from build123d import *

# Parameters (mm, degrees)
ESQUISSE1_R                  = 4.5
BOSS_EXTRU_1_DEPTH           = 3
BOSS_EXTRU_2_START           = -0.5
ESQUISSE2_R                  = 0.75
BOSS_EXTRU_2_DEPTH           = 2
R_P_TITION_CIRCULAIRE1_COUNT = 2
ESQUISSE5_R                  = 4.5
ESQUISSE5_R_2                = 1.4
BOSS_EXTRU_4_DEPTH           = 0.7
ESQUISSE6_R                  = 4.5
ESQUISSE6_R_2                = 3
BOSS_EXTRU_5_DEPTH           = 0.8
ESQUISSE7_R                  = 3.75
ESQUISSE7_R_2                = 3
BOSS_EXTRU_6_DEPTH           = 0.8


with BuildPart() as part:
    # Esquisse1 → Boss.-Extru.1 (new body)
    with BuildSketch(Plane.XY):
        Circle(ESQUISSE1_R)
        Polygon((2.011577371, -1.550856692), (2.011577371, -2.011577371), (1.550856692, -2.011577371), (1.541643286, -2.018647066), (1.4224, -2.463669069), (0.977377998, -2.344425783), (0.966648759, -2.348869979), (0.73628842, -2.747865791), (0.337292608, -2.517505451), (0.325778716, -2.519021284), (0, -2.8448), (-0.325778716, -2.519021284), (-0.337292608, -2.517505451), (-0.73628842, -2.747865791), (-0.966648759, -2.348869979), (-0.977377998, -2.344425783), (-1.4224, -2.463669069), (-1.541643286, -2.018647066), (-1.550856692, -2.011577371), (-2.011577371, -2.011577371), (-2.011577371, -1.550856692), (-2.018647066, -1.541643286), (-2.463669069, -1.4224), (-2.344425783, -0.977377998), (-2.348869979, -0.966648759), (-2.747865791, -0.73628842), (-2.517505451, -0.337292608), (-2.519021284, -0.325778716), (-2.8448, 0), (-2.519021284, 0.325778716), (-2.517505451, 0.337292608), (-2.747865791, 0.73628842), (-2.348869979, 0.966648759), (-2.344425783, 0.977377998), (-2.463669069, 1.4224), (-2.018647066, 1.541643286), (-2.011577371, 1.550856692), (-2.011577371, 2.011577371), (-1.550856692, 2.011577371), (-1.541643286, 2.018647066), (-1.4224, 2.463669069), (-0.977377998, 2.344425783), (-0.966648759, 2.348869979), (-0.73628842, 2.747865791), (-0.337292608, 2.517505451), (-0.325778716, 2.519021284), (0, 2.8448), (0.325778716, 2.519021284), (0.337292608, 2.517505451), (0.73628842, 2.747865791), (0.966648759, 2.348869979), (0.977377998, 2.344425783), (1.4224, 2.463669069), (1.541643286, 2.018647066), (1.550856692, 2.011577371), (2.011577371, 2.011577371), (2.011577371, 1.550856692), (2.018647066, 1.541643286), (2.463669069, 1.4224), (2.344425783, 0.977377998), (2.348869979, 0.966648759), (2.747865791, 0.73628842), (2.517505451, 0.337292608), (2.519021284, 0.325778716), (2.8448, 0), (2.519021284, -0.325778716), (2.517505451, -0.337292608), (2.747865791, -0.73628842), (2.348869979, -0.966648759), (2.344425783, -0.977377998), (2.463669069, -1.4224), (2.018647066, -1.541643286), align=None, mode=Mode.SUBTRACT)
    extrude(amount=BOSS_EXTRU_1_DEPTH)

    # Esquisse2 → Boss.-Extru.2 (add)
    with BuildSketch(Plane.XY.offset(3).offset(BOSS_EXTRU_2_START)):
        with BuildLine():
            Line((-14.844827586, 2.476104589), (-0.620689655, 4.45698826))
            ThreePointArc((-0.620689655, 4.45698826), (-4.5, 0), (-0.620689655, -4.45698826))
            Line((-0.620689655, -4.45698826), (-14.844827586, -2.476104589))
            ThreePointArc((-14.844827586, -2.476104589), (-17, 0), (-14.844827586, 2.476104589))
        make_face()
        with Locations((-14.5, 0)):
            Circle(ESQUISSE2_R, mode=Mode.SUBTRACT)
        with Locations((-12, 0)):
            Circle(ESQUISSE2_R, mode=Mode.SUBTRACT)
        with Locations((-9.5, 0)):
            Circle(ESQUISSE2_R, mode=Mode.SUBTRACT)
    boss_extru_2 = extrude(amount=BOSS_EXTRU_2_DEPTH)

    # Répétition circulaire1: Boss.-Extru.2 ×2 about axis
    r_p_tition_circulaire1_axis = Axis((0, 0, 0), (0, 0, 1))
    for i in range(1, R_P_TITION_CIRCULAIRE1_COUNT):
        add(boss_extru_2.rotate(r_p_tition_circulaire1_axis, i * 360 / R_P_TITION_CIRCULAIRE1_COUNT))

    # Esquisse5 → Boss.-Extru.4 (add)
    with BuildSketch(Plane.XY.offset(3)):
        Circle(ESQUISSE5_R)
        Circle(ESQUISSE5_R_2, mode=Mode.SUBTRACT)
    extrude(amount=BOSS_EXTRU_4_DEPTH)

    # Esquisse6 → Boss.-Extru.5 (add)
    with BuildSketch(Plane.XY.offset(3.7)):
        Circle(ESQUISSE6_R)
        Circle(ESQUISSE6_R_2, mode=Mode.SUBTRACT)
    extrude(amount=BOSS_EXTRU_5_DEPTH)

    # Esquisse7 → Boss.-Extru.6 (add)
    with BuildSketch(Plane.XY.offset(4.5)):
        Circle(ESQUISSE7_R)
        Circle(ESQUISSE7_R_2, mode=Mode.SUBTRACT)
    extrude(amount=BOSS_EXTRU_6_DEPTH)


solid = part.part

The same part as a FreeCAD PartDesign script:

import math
import FreeCAD as App
import Part
import Sketcher
Q = App.Units.Quantity


def add_polygon(sketch, points):
    """Adds a closed chain of lines whose ends are joined by coincident constraints."""
    first, n = sketch.GeometryCount, len(points)
    for a, b in zip(points, points[1:] + points[:1]):
        sketch.addGeometry(Part.LineSegment(App.Vector(*a, 0), App.Vector(*b, 0)), False)
    for i in range(n):
        sketch.addConstraint(Sketcher.Constraint("Coincident", first + i, 2, first + (i + 1) % n, 1))

doc = App.newDocument("Part")
params = doc.addObject("Spreadsheet::Sheet", "Params")
for row, (alias, value) in enumerate([
    ("sketch1_diameter", "9 mm"),
    ("pad1_length", "3 mm"),
    ("sketch2_diameter", "1.5 mm"),
    ("sketch2_radius", "2.5 mm"),
    ("sketch2_radius2", "4.5 mm"),
    ("pad2_length", "2 mm"),
    ("sketch3_diameter", "9 mm"),
    ("sketch3_diameter2", "2.8 mm"),
    ("pad3_length", "0.7 mm"),
    ("sketch4_diameter", "9 mm"),
    ("sketch4_diameter2", "6 mm"),
    ("pad4_length", "0.8 mm"),
    ("sketch5_diameter", "6 mm"),
    ("sketch5_diameter2", "7.5 mm"),
    ("pad5_length", "0.8 mm"),
], start=1):
    params.set(f"A{row}", alias)
    params.set(f"B{row}", "=" + value)
    params.setAlias(f"B{row}", alias)

body = doc.addObject("PartDesign::Body", "Body")

# Sketch on XY plane
sketch1 = doc.addObject("Sketcher::SketchObject", "Sketch")
body.addObject(sketch1)
sketch1.AttachmentSupport = (doc.XY_Plane, [""])
sketch1.MapMode = "FlatFace"
sketch1.addGeometry(Part.Circle(App.Vector(0, 0, 0), App.Vector(0, 0, 1), 4.5), False)  # 0
add_polygon(sketch1, [(2.018647, -1.541643), (2.011577, -1.550857), (2.011577, -2.011577), (1.550857, -2.011577), (1.541643, -2.018647), (1.4224, -2.463669), (0.977378, -2.344426), (0.966649, -2.34887), (0.736288, -2.747866), (0.337293, -2.517505), (0.325779, -2.519021), (0, -2.8448), (-0.325779, -2.519021), (-0.337293, -2.517505), (-0.736288, -2.747866), (-0.966649, -2.34887), (-0.977378, -2.344426), (-1.4224, -2.463669), (-1.541643, -2.018647), (-1.550857, -2.011577), (-2.011577, -2.011577), (-2.011577, -1.550857), (-2.018647, -1.541643), (-2.463669, -1.4224), (-2.344426, -0.977378), (-2.34887, -0.966649), (-2.747866, -0.736288), (-2.517505, -0.337293), (-2.519021, -0.325779), (-2.8448, 0), (-2.519021, 0.325779), (-2.517505, 0.337293), (-2.747866, 0.736288), (-2.34887, 0.966649), (-2.344426, 0.977378), (-2.463669, 1.4224), (-2.018647, 1.541643), (-2.011577, 1.550857), (-2.011577, 2.011577), (-1.550857, 2.011577), (-1.541643, 2.018647), (-1.4224, 2.463669), (-0.977378, 2.344426), (-0.966649, 2.34887), (-0.736288, 2.747866), (-0.337293, 2.517505), (-0.325779, 2.519021), (0, 2.8448), (0.325779, 2.519021), (0.337293, 2.517505), (0.736288, 2.747866), (0.966649, 2.34887), (0.977378, 2.344426), (1.4224, 2.463669), (1.541643, 2.018647), (1.550857, 2.011577), (2.011577, 2.011577), (2.011577, 1.550857), (2.018647, 1.541643), (2.463669, 1.4224), (2.344426, 0.977378), (2.34887, 0.966649), (2.747866, 0.736288), (2.517505, 0.337293), (2.519021, 0.325779), (2.8448, 0), (2.519021, -0.325779), (2.517505, -0.337293), (2.747866, -0.736288), (2.34887, -0.966649), (2.344426, -0.977378), (2.463669, -1.4224)])  # lines 1-72
sketch1.addConstraint([
    Sketcher.Constraint("Vertical", 2),
    Sketcher.Constraint("Horizontal", 3),
    Sketcher.Constraint("Horizontal", 20),
    Sketcher.Constraint("Vertical", 21),
    Sketcher.Constraint("Vertical", 38),
    Sketcher.Constraint("Horizontal", 39),
    Sketcher.Constraint("Horizontal", 56),
    Sketcher.Constraint("Vertical", 57),
    Sketcher.Constraint("Coincident", 0, 3, -1, 1),
    Sketcher.Constraint("Symmetric", 1, 2, 37, 2, -1, 1),
    Sketcher.Constraint("Symmetric", 3, 2, 39, 2, -1, 1),
    Sketcher.Constraint("Symmetric", 4, 2, 40, 2, -1, 1),
    Sketcher.Constraint("Symmetric", 5, 2, 41, 2, -1, 1),
    Sketcher.Constraint("Symmetric", 6, 2, 42, 2, -1, 1),
    Sketcher.Constraint("Symmetric", 7, 2, 43, 2, -1, 1),
    Sketcher.Constraint("Symmetric", 8, 2, 44, 2, -1, 1),
    Sketcher.Constraint("Symmetric", 9, 2, 45, 2, -1, 1),
    Sketcher.Constraint("Symmetric", 10, 2, 46, 2, -1, 1),
    Sketcher.Constraint("Symmetric", 11, 2, 47, 2, -1, 1),
    Sketcher.Constraint("Symmetric", 12, 2, 48, 2, -1, 1),
    Sketcher.Constraint("Symmetric", 13, 2, 49, 2, -1, 1),
    Sketcher.Constraint("Symmetric", 14, 2, 50, 2, -1, 1),
    Sketcher.Constraint("Symmetric", 15, 2, 51, 2, -1, 1),
    Sketcher.Constraint("Symmetric", 16, 2, 52, 2, -1, 1),
    Sketcher.Constraint("Symmetric", 17, 2, 53, 2, -1, 1),
    Sketcher.Constraint("Symmetric", 18, 2, 54, 2, -1, 1),
    Sketcher.Constraint("Symmetric", 19, 2, 55, 2, -1, 1),
    Sketcher.Constraint("Symmetric", 21, 2, 57, 2, -1, 1),
    Sketcher.Constraint("Symmetric", 22, 2, 58, 2, -1, 1),
    Sketcher.Constraint("Symmetric", 23, 2, 59, 2, -1, 1),
    Sketcher.Constraint("Symmetric", 24, 2, 60, 2, -1, 1),
    Sketcher.Constraint("Symmetric", 25, 2, 61, 2, -1, 1),
    Sketcher.Constraint("Symmetric", 26, 2, 62, 2, -1, 1),
    Sketcher.Constraint("Symmetric", 27, 2, 63, 2, -1, 1),
    Sketcher.Constraint("Symmetric", 28, 2, 64, 2, -1, 1),
    Sketcher.Constraint("Symmetric", 29, 2, 65, 2, -1, 1),
    Sketcher.Constraint("Symmetric", 30, 2, 66, 2, -1, 1),
    Sketcher.Constraint("Symmetric", 31, 2, 67, 2, -1, 1),
    Sketcher.Constraint("Symmetric", 32, 2, 68, 2, -1, 1),
    Sketcher.Constraint("Symmetric", 33, 2, 69, 2, -1, 1),
    Sketcher.Constraint("Symmetric", 34, 2, 70, 2, -1, 1),
    Sketcher.Constraint("Symmetric", 35, 2, 71, 2, -1, 1),
    Sketcher.Constraint("Symmetric", 36, 2, 72, 2, -1, 1),
    Sketcher.Constraint("Symmetric", 10, 2, 12, 2, -2),
    Sketcher.Constraint("Symmetric", 9, 2, 13, 2, -2),
    Sketcher.Constraint("Symmetric", 8, 2, 14, 2, -2),
    Sketcher.Constraint("Symmetric", 7, 2, 15, 2, -2),
    Sketcher.Constraint("Symmetric", 6, 2, 16, 2, -2),
    Sketcher.Constraint("Symmetric", 5, 2, 17, 2, -2),
    Sketcher.Constraint("Symmetric", 4, 2, 18, 2, -2),
    Sketcher.Constraint("Symmetric", 3, 2, 19, 2, -2),
    Sketcher.Constraint("Symmetric", 1, 2, 21, 2, -2),
    Sketcher.Constraint("Symmetric", 36, 2, 58, 2, -2),
    Sketcher.Constraint("Symmetric", 35, 2, 59, 2, -2),
    Sketcher.Constraint("Symmetric", 34, 2, 60, 2, -2),
    Sketcher.Constraint("Symmetric", 33, 2, 61, 2, -2),
    Sketcher.Constraint("Symmetric", 32, 2, 62, 2, -2),
    Sketcher.Constraint("Symmetric", 31, 2, 63, 2, -2),
    Sketcher.Constraint("Symmetric", 30, 2, 64, 2, -2),
    Sketcher.Constraint("PointOnObject", 11, 2, -2),
    Sketcher.Constraint("PointOnObject", 29, 2, -1),
    Sketcher.Constraint("Perpendicular", 5, 6),
    Sketcher.Constraint("Perpendicular", 8, 9),
    Sketcher.Constraint("Perpendicular", 11, 12),
    Sketcher.Constraint("Perpendicular", 1, 19),
    Sketcher.Constraint("Parallel", 6, 23),
    Sketcher.Constraint("Perpendicular", 23, 24),
    Sketcher.Constraint("Perpendicular", 7, 25),
    Sketcher.Constraint("Parallel", 9, 26),
    Sketcher.Constraint("Perpendicular", 26, 27),
    Sketcher.Constraint("Perpendicular", 10, 28),
    Sketcher.Constraint("Parallel", 12, 29),
    Sketcher.Constraint("Equal", 56, 2),
    Sketcher.Constraint("Equal", 1, 4),
    Sketcher.Constraint("Equal", 5, 6),
    Sketcher.Constraint("Equal", 4, 7),
    Sketcher.Constraint("Equal", 6, 8),
    Sketcher.Constraint("Equal", 8, 9),
    Sketcher.Constraint("Equal", 7, 10),
    Sketcher.Constraint("Equal", 9, 11),
    Sketcher.Constraint("Equal", 18, 23),
    Sketcher.Constraint("Equal", 23, 24),
    Sketcher.Constraint("Equal", 22, 25),
    Sketcher.Constraint("Equal", 24, 26),
    Sketcher.Constraint("Equal", 26, 27),
    Sketcher.Constraint("Equal", 25, 28),
    Sketcher.Constraint("Equal", 27, 29),
    Sketcher.Constraint("Diameter", 0, 9.0),
    Sketcher.Constraint("Angle", 5, Q("-105 deg")),
    Sketcher.Constraint("Angle", 8, Q("-120 deg")),
    Sketcher.Constraint("Angle", 1, Q("-127.5 deg")),
    Sketcher.Constraint("Angle", 7, Q("-157.500001 deg")),
    Sketcher.Constraint("Angle", 10, Q("-172.499998 deg")),
    Sketcher.Constraint("DistanceX", 3, 2, 3, 1, 0.460721),
    Sketcher.Constraint("DistanceX", -1, 1, 5, 2, 1.4224),
    Sketcher.Constraint("DistanceY", 11, 2, -1, 1, 2.8448),
])
sketch1.setExpression("Constraints[159]", "Params.sketch1_diameter")
pad1 = doc.addObject("PartDesign::Pad", "Pad")
body.addObject(pad1)
pad1.Profile = sketch1
pad1.setExpression("Length", "Params.pad1_length")

# Sketch on XY plane
sketch2 = doc.addObject("Sketcher::SketchObject", "Sketch001")
body.addObject(sketch2)
sketch2.AttachmentSupport = (doc.XY_Plane, [""])
sketch2.MapMode = "FlatFace"
sketch2.AttachmentOffset = App.Placement(App.Vector(0, 0, 2.5), App.Rotation())
sketch2.addGeometry([
    Part.LineSegment(App.Vector(-0.62069, 4.456988, 0), App.Vector(-14.844828, 2.476105, 0)),  # 0
    Part.ArcOfCircle(Part.Circle(App.Vector(-14.5, 0, 0), App.Vector(0, 0, 1), 2.5), math.radians(97.928142), math.radians(262.071858)),  # 1
    Part.LineSegment(App.Vector(-14.844828, -2.476105, 0), App.Vector(-0.62069, -4.456988, 0)),  # 2
    Part.ArcOfCircle(Part.Circle(App.Vector(0, 0, 0), App.Vector(0, 0, 1), 4.5), math.radians(97.928142), math.radians(262.071858)),  # 3
    Part.Circle(App.Vector(-9.5, 0, 0), App.Vector(0, 0, 1), 0.75),  # 4
    Part.Circle(App.Vector(-12, 0, 0), App.Vector(0, 0, 1), 0.75),  # 5
    Part.Circle(App.Vector(-14.5, 0, 0), App.Vector(0, 0, 1), 0.75),  # 6
], False)
sketch2.addConstraint([
    Sketcher.Constraint("Tangent", 0, 2, 1, 1),
    Sketcher.Constraint("Tangent", 1, 2, 2, 1),
    Sketcher.Constraint("Tangent", 2, 2, 3, 2),
    Sketcher.Constraint("Tangent", 3, 1, 0, 1),
    Sketcher.Constraint("Coincident", 3, 3, -1, 1),
    Sketcher.Constraint("Coincident", 6, 3, 1, 3),
    Sketcher.Constraint("Equal", 4, 5),
    Sketcher.Constraint("Equal", 5, 6),
    Sketcher.Constraint("PointOnObject", 1, 3, -1),
    Sketcher.Constraint("PointOnObject", 4, 3, -1),
    Sketcher.Constraint("PointOnObject", 5, 3, -1),
    Sketcher.Constraint("Diameter", 4, 1.5),
    Sketcher.Constraint("Radius", 1, 2.5),
    Sketcher.Constraint("Radius", 3, 4.5),
    Sketcher.Constraint("DistanceX", 5, 3, -1, 1, 12.0),
    Sketcher.Constraint("DistanceX", 1, 3, 4, 3, 5.0),
    Sketcher.Constraint("DistanceX", 1, 3, -1, 1, 14.5),
])
sketch2.setExpression("Constraints[11]", "Params.sketch2_diameter")
sketch2.setExpression("Constraints[12]", "Params.sketch2_radius")
sketch2.setExpression("Constraints[13]", "Params.sketch2_radius2")
pad2 = doc.addObject("PartDesign::Pad", "Pad001")
body.addObject(pad2)
pad2.Profile = sketch2
pad2.setExpression("Length", "Params.pad2_length")
doc.recompute()

polarpattern = doc.addObject("PartDesign::PolarPattern", "PolarPattern")
body.addObject(polarpattern)
polarpattern.Originals = [pad2]
polarpattern.Axis = (doc.Z_Axis, [""])
polarpattern.Angle = 360
polarpattern.Occurrences = 2
body.Tip = polarpattern

# Sketch on XY plane
sketch3 = doc.addObject("Sketcher::SketchObject", "Sketch002")
body.addObject(sketch3)
sketch3.AttachmentSupport = (doc.XY_Plane, [""])
sketch3.MapMode = "FlatFace"
sketch3.AttachmentOffset = App.Placement(App.Vector(0, 0, 3), App.Rotation())
sketch3.addGeometry([
    Part.Circle(App.Vector(0, 0, 0), App.Vector(0, 0, 1), 4.5),
    Part.Circle(App.Vector(0, 0, 0), App.Vector(0, 0, 1), 1.4),
], False)
sketch3.addConstraint([
    Sketcher.Constraint("Coincident", 0, 3, -1, 1),
    Sketcher.Constraint("Coincident", 1, 3, -1, 1),
    Sketcher.Constraint("Diameter", 0, 9.0),
    Sketcher.Constraint("Diameter", 1, 2.8),
])
sketch3.setExpression("Constraints[2]", "Params.sketch3_diameter")
sketch3.setExpression("Constraints[3]", "Params.sketch3_diameter2")
pad3 = doc.addObject("PartDesign::Pad", "Pad002")
body.addObject(pad3)
pad3.Profile = sketch3
pad3.setExpression("Length", "Params.pad3_length")

# Sketch on XY plane
sketch4 = doc.addObject("Sketcher::SketchObject", "Sketch003")
body.addObject(sketch4)
sketch4.AttachmentSupport = (doc.XY_Plane, [""])
sketch4.MapMode = "FlatFace"
sketch4.AttachmentOffset = App.Placement(App.Vector(0, 0, 3.7), App.Rotation())
sketch4.addGeometry([
    Part.Circle(App.Vector(0, 0, 0), App.Vector(0, 0, 1), 4.5),
    Part.Circle(App.Vector(0, 0, 0), App.Vector(0, 0, 1), 3),
], False)
sketch4.addConstraint([
    Sketcher.Constraint("Coincident", 0, 3, -1, 1),
    Sketcher.Constraint("Coincident", 1, 3, -1, 1),
    Sketcher.Constraint("Diameter", 0, 9.0),
    Sketcher.Constraint("Diameter", 1, 6.0),
])
sketch4.setExpression("Constraints[2]", "Params.sketch4_diameter")
sketch4.setExpression("Constraints[3]", "Params.sketch4_diameter2")
pad4 = doc.addObject("PartDesign::Pad", "Pad003")
body.addObject(pad4)
pad4.Profile = sketch4
pad4.setExpression("Length", "Params.pad4_length")

# Sketch on XY plane
sketch5 = doc.addObject("Sketcher::SketchObject", "Sketch004")
body.addObject(sketch5)
sketch5.AttachmentSupport = (doc.XY_Plane, [""])
sketch5.MapMode = "FlatFace"
sketch5.AttachmentOffset = App.Placement(App.Vector(0, 0, 4.5), App.Rotation())
sketch5.addGeometry([
    Part.Circle(App.Vector(0, 0, 0), App.Vector(0, 0, 1), 3.75),
    Part.Circle(App.Vector(0, 0, 0), App.Vector(0, 0, 1), 3),
], False)
sketch5.addConstraint([
    Sketcher.Constraint("Coincident", 0, 3, -1, 1),
    Sketcher.Constraint("Coincident", 1, 3, -1, 1),
    Sketcher.Constraint("Diameter", 1, 6.0),
    Sketcher.Constraint("Diameter", 0, 7.5),
])
sketch5.setExpression("Constraints[2]", "Params.sketch5_diameter")
sketch5.setExpression("Constraints[3]", "Params.sketch5_diameter2")
pad5 = doc.addObject("PartDesign::Pad", "Pad004")
body.addObject(pad5)
pad5.Profile = sketch5
pad5.setExpression("Length", "Params.pad5_length")

doc.recompute()
